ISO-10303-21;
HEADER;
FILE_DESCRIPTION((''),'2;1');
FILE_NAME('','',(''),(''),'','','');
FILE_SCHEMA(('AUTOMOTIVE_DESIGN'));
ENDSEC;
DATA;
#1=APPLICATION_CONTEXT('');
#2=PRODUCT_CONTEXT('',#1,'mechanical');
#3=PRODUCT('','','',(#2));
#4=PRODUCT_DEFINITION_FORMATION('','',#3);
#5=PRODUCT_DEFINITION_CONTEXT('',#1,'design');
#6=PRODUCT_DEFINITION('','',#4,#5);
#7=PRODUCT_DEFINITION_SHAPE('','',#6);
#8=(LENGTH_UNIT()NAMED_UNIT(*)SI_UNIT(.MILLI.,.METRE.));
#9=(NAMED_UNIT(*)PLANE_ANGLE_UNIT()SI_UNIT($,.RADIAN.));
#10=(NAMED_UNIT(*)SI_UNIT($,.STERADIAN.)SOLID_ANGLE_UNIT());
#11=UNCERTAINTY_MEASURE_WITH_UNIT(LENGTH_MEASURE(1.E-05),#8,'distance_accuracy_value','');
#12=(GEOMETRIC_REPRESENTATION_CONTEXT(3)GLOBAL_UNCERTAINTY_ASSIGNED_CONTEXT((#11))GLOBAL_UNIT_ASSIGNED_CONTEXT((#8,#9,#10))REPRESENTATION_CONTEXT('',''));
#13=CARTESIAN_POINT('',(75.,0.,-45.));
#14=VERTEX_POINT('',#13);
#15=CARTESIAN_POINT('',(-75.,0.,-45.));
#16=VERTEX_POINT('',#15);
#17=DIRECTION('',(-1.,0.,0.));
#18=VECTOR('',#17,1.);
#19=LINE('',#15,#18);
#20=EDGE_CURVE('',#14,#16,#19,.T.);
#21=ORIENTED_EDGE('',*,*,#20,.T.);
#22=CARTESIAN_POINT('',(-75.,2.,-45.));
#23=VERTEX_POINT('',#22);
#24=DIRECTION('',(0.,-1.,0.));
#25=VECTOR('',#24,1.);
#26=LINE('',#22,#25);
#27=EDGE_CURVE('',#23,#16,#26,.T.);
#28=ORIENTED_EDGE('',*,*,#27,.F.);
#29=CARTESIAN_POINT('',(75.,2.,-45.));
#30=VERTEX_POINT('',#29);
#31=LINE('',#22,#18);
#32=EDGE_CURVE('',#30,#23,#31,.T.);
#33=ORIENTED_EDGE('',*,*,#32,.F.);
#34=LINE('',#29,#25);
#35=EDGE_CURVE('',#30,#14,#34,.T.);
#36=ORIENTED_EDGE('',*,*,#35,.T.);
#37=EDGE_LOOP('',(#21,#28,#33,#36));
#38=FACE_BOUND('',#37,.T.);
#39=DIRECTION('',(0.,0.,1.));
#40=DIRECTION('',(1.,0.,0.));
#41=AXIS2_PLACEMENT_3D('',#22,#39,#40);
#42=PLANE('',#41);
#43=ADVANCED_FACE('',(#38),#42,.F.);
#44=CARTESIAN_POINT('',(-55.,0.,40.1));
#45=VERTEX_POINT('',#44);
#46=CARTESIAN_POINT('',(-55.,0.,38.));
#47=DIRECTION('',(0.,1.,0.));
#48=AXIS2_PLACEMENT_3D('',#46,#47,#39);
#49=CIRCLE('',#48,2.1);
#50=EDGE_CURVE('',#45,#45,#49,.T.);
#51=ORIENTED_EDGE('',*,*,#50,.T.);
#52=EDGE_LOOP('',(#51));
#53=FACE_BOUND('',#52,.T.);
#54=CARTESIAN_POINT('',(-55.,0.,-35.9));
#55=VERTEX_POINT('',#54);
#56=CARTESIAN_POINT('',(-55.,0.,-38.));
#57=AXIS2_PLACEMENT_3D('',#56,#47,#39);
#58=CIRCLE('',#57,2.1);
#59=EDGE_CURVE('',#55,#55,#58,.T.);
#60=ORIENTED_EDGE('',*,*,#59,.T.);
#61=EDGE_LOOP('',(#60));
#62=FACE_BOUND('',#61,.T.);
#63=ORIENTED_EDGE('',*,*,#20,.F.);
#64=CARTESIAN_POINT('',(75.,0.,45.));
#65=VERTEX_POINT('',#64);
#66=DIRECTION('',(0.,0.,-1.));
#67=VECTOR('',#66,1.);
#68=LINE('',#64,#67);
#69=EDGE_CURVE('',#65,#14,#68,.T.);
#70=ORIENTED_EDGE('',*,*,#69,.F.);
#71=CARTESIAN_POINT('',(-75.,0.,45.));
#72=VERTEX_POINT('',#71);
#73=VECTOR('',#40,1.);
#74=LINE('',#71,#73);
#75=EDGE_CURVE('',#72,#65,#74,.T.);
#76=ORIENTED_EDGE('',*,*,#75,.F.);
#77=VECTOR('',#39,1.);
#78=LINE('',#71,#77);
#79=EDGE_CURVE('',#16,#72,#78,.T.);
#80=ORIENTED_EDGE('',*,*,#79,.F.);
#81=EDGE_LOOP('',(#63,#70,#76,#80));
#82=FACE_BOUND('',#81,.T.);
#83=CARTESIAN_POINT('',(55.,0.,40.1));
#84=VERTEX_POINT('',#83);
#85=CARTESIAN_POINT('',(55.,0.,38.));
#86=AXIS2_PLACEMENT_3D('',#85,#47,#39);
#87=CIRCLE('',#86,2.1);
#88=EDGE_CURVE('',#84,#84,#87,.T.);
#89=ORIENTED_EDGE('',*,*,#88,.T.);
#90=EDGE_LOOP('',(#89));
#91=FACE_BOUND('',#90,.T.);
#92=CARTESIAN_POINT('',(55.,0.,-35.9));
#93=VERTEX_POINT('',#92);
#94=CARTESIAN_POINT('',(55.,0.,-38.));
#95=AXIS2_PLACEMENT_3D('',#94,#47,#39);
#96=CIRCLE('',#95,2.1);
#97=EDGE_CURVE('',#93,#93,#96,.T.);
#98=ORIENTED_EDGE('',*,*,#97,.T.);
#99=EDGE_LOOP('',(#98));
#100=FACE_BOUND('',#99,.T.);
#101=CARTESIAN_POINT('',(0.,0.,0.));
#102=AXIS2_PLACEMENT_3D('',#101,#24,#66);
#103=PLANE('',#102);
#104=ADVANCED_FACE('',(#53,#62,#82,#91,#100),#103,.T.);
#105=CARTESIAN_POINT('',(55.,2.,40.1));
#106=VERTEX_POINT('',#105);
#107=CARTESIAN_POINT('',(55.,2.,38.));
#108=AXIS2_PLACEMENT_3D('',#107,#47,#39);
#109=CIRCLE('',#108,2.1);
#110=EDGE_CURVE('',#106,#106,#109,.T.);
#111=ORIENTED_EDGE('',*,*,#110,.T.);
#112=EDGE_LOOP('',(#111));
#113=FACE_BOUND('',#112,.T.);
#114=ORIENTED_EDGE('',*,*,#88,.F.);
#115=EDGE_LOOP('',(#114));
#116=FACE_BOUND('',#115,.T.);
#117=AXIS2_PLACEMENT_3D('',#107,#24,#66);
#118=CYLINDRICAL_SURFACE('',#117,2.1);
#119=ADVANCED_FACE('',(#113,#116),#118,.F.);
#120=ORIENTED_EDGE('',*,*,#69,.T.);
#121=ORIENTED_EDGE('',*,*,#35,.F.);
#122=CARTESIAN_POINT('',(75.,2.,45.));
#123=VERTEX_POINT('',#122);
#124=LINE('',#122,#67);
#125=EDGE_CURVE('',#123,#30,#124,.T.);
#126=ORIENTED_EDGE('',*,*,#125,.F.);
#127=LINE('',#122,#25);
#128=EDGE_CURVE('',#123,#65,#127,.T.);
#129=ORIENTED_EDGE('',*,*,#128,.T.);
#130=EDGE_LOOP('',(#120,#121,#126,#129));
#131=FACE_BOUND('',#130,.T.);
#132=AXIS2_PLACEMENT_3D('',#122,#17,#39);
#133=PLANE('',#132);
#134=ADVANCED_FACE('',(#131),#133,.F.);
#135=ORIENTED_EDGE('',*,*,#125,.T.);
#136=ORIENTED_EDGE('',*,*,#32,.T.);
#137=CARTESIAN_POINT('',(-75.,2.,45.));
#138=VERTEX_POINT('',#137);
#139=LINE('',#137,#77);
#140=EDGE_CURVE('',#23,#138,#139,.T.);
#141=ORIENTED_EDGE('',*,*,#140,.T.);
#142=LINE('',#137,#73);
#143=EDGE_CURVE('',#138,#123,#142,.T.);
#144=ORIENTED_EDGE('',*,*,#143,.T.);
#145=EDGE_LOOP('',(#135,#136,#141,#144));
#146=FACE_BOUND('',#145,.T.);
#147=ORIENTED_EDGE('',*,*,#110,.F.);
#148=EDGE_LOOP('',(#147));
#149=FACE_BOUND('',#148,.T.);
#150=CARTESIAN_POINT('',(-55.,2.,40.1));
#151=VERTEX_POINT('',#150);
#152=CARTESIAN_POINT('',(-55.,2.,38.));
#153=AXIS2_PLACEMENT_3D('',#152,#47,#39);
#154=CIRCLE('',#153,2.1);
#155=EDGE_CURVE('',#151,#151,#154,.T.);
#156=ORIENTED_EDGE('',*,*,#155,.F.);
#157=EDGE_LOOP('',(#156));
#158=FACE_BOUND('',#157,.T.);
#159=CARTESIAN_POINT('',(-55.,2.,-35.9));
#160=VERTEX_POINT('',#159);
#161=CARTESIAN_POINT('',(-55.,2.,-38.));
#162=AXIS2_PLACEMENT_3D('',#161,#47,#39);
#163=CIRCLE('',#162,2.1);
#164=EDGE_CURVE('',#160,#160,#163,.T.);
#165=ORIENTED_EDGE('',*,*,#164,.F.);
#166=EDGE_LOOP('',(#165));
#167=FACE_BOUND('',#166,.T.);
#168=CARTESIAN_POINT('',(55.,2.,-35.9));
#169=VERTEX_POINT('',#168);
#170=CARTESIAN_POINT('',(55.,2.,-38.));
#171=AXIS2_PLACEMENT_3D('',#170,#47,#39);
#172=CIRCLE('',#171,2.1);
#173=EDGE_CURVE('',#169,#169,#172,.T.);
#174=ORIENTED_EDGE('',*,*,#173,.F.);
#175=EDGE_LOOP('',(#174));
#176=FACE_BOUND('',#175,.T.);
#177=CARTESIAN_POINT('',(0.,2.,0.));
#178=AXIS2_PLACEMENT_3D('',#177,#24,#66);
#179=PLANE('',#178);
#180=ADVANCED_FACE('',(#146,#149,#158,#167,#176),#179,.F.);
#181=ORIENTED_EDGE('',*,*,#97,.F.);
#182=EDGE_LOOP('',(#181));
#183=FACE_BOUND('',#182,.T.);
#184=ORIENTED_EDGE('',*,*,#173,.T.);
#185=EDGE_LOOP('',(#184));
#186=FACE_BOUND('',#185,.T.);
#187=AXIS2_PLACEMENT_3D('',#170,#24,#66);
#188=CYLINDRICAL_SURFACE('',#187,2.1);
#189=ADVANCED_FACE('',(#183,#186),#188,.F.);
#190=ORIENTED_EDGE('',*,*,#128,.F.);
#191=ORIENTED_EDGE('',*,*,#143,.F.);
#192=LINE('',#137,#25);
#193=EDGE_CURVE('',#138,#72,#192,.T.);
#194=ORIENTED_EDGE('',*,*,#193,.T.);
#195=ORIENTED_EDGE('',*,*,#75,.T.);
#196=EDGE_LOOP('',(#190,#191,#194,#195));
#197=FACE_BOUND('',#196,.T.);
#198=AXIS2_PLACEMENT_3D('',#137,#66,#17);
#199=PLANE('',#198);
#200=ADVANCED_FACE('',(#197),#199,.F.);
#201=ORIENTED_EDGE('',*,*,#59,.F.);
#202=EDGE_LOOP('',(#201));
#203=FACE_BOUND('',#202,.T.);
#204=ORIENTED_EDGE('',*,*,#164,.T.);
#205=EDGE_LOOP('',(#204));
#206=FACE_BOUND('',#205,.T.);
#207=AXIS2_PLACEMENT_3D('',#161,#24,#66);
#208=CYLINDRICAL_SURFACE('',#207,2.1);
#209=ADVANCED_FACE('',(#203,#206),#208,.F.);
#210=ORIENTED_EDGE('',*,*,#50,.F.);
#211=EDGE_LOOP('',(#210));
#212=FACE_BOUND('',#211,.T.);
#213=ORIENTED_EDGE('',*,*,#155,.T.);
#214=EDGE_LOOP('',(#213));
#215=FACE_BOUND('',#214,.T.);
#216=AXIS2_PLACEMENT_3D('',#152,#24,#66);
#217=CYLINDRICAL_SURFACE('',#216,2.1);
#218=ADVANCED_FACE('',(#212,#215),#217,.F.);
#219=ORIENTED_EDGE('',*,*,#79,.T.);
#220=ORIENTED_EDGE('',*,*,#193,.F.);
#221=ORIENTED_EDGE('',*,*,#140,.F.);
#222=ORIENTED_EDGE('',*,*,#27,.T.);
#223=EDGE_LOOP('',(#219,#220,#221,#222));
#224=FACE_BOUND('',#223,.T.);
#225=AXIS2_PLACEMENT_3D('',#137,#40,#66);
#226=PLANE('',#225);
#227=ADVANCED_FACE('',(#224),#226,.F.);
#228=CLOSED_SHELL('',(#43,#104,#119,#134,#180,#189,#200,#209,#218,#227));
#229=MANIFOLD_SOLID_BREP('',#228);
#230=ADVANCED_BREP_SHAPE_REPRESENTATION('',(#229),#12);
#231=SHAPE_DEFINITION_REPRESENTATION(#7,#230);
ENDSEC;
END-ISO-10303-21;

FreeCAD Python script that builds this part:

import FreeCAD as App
import Part
import Sketcher

V = App.Vector
Q = App.Units.Quantity


def add_polygon(sketch, points):
    """Adds a closed chain of lines whose ends are joined by coincident constraints."""
    first, n = sketch.GeometryCount, len(points)
    for a, b in zip(points, points[1:] + points[:1]):
        sketch.addGeometry(Part.LineSegment(App.Vector(*a, 0), App.Vector(*b, 0)), False)
    for i in range(n):
        sketch.addConstraint(Sketcher.Constraint("Coincident", first + i, 2, first + (i + 1) % n, 1))

doc = App.newDocument("Part")
body = doc.addObject("PartDesign::Body", "Body")

# Sketch on XZ plane
sketch1 = body.newObject("Sketcher::SketchObject", "Sketch")
sketch1.AttachmentSupport = (doc.getObject("XZ_Plane"), [""])
sketch1.MapMode = "FlatFace"
add_polygon(sketch1, [(-75, -45), (-75, 45), (75, 45), (75, -45)])  # lines 0-3
sketch1.addGeometry(Part.Circle(V(-55, 38, 0), V(0, 0, 1), 2.1), False)  # 4
sketch1.addGeometry(Part.Circle(V(55, 38, 0), V(0, 0, 1), 2.1), False)  # 5
sketch1.addGeometry(Part.Circle(V(-55, -38, 0), V(0, 0, 1), 2.1), False)  # 6
sketch1.addGeometry(Part.Circle(V(55, -38, 0), V(0, 0, 1), 2.1), False)  # 7
sketch1.addConstraint(Sketcher.Constraint("Vertical", 0))
sketch1.addConstraint(Sketcher.Constraint("Horizontal", 1))
sketch1.addConstraint(Sketcher.Constraint("Vertical", 2))
sketch1.addConstraint(Sketcher.Constraint("Horizontal", 3))
sketch1.addConstraint(Sketcher.Constraint("Equal", 4, 5))
sketch1.addConstraint(Sketcher.Constraint("Equal", 5, 6))
sketch1.addConstraint(Sketcher.Constraint("Equal", 6, 7))
sketch1.addConstraint(Sketcher.Constraint("Symmetric", 5, 3, 6, 3, -1, 1))
sketch1.addConstraint(Sketcher.Constraint("Symmetric", 4, 3, 7, 3, -1, 1))
sketch1.addConstraint(Sketcher.Constraint("Symmetric", 0, 2, 2, 2, -1, 1))
sketch1.addConstraint(Sketcher.Constraint("Symmetric", 4, 3, 5, 3, -2))
sketch1.addConstraint(Sketcher.Constraint("Diameter", 4, Q("4.2 mm")))
sketch1.addConstraint(Sketcher.Constraint("DistanceX", 1, 1, 1, 2, Q("150 mm")))
sketch1.addConstraint(Sketcher.Constraint("DistanceY", 0, 1, 0, 2, Q("90 mm")))
sketch1.addConstraint(Sketcher.Constraint("DistanceX", 4, 3, -1, 1, Q("55 mm")))
sketch1.addConstraint(Sketcher.Constraint("DistanceY", -1, 1, 4, 3, Q("38 mm")))
pad1 = body.newObject("PartDesign::Pad", "Pad")
pad1.Profile = sketch1
pad1.Length = 2
pad1.Reversed = True

doc.recompute()
